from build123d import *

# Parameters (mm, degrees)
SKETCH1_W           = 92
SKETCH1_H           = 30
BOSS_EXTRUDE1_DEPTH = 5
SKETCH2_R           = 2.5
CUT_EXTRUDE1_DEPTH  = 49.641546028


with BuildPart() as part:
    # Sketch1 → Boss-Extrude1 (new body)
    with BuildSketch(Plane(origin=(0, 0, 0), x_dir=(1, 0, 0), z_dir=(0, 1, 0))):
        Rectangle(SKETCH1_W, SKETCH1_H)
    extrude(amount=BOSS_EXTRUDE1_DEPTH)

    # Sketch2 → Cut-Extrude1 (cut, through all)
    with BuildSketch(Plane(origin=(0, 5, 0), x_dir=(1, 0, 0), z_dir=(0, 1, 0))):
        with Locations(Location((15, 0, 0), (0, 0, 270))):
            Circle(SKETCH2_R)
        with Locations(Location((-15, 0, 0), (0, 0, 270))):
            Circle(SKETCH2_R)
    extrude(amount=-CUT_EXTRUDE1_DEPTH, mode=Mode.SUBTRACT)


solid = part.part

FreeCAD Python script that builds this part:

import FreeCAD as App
import Part
import Sketcher
from FreeCAD import Vector

doc = App.newDocument("Part")
params = doc.addObject("Spreadsheet::Sheet", "Params")
for row, (alias, value) in enumerate([
    ("sketch1_width", "92 mm"),
    ("sketch1_height", "30 mm"),
    ("pad1_length", "5 mm"),
    ("sketch2_diameter", "5 mm"),
], start=1):
    params.set(f"A{row}", alias)
    params.set(f"B{row}", "=" + value)
    params.setAlias(f"B{row}", alias)

body = doc.addObject("PartDesign::Body", "Body")

# Sketch on XZ plane
sketch1 = doc.addObject("Sketcher::SketchObject", "Sketch")
body.addObject(sketch1)
sketch1.AttachmentSupport = (doc.XZ_Plane, [""])
sketch1.MapMode = "FlatFace"
sketch1.addGeometry([
    Part.LineSegment(Vector(-46, -15, 0), Vector(-46, 15, 0)),
    Part.LineSegment(Vector(-46, 15, 0), Vector(46, 15, 0)),
    Part.LineSegment(Vector(46, 15, 0), Vector(46, -15, 0)),
    Part.LineSegment(Vector(46, -15, 0), Vector(-46, -15, 0)),
], False)
sketch1.addConstraint([
    Sketcher.Constraint("Coincident", 0, 2, 1, 1),
    Sketcher.Constraint("Coincident", 1, 2, 2, 1),
    Sketcher.Constraint("Coincident", 2, 2, 3, 1),
    Sketcher.Constraint("Coincident", 3, 2, 0, 1),
    Sketcher.Constraint("Vertical", 0),
    Sketcher.Constraint("Horizontal", 1),
    Sketcher.Constraint("Vertical", 2),
    Sketcher.Constraint("Horizontal", 3),
    Sketcher.Constraint("Symmetric", 0, 2, 2, 2, -1, 1),
    Sketcher.Constraint("DistanceX", 1, 1, 1, 2, 92.0),
    Sketcher.Constraint("DistanceY", 0, 1, 0, 2, 30.0),
])
sketch1.setExpression("Constraints[9]", "Params.sketch1_width")
sketch1.setExpression("Constraints[10]", "Params.sketch1_height")
pad1 = doc.addObject("PartDesign::Pad", "Pad")
body.addObject(pad1)
pad1.Profile = sketch1
pad1.setExpression("Length", "Params.pad1_length")
pad1.Reversed = True

# Sketch on XZ plane
sketch2 = doc.addObject("Sketcher::SketchObject", "Sketch001")
body.addObject(sketch2)
sketch2.AttachmentSupport = (doc.XZ_Plane, [""])
sketch2.MapMode = "FlatFace"
sketch2.AttachmentOffset = App.Placement(Vector(0, 0, -5), App.Rotation())
sketch2.addGeometry([
    Part.Circle(Vector(15, 0, 0), Vector(0, 0, 1), 2.5),
    Part.Circle(Vector(-15, 0, 0), Vector(0, 0, 1), 2.5),
], False)
sketch2.addConstraint([
    Sketcher.Constraint("Equal", 0, 1),
    Sketcher.Constraint("Symmetric", 0, 3, 1, 3, -1, 1),
    Sketcher.Constraint("PointOnObject", 0, 3, -1),
    Sketcher.Constraint("Diameter", 0, 5.0),
    Sketcher.Constraint("DistanceX", -1, 1, 0, 3, 15.0),
])
sketch2.setExpression("Constraints[3]", "Params.sketch2_diameter")
pocket1 = doc.addObject("PartDesign::Pocket", "Pocket")
body.addObject(pocket1)
pocket1.Profile = sketch2
pocket1.Type = "ThroughAll"
pocket1.Reversed = True

doc.recompute()
